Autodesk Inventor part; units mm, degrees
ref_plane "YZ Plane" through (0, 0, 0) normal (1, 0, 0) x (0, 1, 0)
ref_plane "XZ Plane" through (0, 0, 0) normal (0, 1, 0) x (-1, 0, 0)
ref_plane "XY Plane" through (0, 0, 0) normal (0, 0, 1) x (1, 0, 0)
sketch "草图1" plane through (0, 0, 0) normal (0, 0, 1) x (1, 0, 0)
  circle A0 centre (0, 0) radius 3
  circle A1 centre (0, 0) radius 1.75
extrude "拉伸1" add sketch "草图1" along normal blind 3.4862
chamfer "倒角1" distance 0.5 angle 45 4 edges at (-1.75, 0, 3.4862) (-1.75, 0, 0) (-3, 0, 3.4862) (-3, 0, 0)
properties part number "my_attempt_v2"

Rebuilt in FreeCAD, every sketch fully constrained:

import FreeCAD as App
import Part
import Sketcher
from FreeCAD import Vector
Q = App.Units.Quantity


def edges_at(feature, points):
    """Names of the edges that pass closest to the given points."""
    edges = feature.Shape.Edges
    near = lambda p: min(range(len(edges)), key=lambda i: edges[i].distToShape(Part.Vertex(*p))[0])
    return sorted({f"Edge{near(p) + 1}" for p in points})

doc = App.newDocument("Part")
body = doc.addObject("PartDesign::Body", "Body")

# Sketch on XY plane
sketch1 = body.newObject("Sketcher::SketchObject", "Sketch")
sketch1.AttachmentSupport = (doc.getObject("XY_Plane"), [""])
sketch1.MapMode = "FlatFace"
sketch1.addGeometry(Part.Circle(Vector(0, 0, 0), Vector(0, 0, 1), 3), False)
sketch1.addGeometry(Part.Circle(Vector(0, 0, 0), Vector(0, 0, 1), 1.8), False)
sketch1.addConstraint(Sketcher.Constraint("Coincident", 0, 3, -1, 1))
sketch1.addConstraint(Sketcher.Constraint("Coincident", 1, 3, -1, 1))
sketch1.addConstraint(Sketcher.Constraint("Diameter", 0, Q("6 mm")))
sketch1.addConstraint(Sketcher.Constraint("Diameter", 1, Q("3.5 mm")))
pad1 = body.newObject("PartDesign::Pad", "Pad")
pad1.Profile = sketch1
pad1.Length = 3.4862
doc.recompute()

chamfer = body.newObject("PartDesign::Chamfer", "Chamfer")
chamfer.Base = (pad1, edges_at(pad1, [
    (-1.75, 0, 3.486),
    (-1.75, 0, 0),
    (-3, 0, 3.486),
    (-3, 0, 0),
]))
chamfer.Size = 0.5

doc.recompute()
